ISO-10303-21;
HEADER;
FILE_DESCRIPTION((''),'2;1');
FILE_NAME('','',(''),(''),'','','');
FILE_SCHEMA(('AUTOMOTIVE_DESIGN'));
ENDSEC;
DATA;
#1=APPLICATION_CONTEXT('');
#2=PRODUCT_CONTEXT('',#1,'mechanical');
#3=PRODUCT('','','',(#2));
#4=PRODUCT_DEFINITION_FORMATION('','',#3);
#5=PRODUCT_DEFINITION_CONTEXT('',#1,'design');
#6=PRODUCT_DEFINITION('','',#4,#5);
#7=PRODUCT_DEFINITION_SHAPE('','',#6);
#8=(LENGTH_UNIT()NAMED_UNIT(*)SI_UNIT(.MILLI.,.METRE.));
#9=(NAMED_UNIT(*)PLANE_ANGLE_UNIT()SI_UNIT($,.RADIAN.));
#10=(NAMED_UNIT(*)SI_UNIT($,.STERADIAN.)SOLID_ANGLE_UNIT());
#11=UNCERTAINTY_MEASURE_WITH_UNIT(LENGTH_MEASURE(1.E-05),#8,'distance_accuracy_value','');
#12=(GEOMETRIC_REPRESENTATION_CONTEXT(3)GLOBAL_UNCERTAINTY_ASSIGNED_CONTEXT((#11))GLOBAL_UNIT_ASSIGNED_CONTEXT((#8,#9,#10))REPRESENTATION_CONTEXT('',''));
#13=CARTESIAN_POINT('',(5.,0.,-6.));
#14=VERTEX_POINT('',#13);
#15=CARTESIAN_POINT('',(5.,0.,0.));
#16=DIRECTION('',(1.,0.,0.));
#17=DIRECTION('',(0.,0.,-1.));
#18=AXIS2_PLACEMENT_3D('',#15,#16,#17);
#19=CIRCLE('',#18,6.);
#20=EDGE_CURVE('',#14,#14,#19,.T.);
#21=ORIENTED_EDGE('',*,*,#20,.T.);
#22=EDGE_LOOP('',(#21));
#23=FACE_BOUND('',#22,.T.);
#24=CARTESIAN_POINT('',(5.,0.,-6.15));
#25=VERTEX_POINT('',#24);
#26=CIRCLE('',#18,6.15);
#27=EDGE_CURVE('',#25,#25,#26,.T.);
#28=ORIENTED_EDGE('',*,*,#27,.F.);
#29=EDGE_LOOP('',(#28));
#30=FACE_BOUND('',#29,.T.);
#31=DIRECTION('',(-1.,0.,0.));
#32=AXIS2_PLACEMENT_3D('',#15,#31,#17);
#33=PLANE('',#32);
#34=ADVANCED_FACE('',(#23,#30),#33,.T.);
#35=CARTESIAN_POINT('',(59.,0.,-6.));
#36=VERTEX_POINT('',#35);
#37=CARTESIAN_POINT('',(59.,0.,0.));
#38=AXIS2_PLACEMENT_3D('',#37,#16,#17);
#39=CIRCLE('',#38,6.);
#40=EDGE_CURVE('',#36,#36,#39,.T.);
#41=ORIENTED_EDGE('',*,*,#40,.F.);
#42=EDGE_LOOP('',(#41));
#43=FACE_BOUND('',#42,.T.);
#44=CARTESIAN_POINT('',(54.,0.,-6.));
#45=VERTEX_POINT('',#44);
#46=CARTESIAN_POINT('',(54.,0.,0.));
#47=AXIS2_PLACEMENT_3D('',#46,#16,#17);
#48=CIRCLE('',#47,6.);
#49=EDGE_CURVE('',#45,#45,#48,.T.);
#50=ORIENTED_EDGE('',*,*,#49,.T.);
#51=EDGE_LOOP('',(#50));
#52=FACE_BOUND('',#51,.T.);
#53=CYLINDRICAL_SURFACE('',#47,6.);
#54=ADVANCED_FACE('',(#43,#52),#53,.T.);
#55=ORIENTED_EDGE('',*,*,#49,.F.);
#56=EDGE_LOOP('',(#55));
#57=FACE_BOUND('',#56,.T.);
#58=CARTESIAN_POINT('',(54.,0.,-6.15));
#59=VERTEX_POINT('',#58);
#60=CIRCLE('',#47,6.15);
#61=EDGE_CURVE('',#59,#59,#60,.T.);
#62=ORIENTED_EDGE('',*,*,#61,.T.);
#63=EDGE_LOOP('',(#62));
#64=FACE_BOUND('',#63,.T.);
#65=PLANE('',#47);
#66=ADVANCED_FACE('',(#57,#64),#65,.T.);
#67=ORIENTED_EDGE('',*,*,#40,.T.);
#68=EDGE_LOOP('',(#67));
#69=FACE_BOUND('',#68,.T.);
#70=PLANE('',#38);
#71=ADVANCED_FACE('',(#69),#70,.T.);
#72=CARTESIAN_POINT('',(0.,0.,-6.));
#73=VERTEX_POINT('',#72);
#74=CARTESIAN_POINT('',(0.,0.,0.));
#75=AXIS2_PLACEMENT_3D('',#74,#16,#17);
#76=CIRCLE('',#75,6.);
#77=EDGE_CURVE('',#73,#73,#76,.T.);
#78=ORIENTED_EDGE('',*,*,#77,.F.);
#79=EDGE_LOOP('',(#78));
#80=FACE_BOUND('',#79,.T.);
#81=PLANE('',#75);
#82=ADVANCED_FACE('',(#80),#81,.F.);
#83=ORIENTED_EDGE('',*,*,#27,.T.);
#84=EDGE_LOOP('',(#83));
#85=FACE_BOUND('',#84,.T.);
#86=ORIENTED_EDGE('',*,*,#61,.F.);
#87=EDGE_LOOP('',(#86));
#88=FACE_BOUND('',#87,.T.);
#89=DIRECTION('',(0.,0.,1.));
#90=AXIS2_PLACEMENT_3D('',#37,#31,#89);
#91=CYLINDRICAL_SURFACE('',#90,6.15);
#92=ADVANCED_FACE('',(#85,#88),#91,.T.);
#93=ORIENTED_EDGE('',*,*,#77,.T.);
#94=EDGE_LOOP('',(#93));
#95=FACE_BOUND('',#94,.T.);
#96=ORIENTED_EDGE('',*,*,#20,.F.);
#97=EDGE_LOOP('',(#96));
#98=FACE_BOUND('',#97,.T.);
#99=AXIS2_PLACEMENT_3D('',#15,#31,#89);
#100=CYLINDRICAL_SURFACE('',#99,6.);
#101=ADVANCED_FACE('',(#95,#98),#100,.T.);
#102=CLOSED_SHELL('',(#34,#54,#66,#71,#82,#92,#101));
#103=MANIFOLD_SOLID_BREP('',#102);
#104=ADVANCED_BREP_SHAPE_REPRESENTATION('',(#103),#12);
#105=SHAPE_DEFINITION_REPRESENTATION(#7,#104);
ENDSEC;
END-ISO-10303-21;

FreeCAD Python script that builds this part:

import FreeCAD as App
import Part
import Sketcher

V = App.Vector
Q = App.Units.Quantity

doc = App.newDocument("Part")
body = doc.addObject("PartDesign::Body", "Body")

sketch1 = body.newObject("Sketcher::SketchObject", "Sketch")
sketch1.AttachmentSupport = (doc.getObject("YZ_Plane"), [""])
sketch1.MapMode = "FlatFace"
sketch1.addGeometry(Part.Circle(V(0, 0, 0), V(0, 0, 1), 6.15), False)
sketch1.addConstraint([
    Sketcher.Constraint("Coincident", 0, 3, -1, 1),
    Sketcher.Constraint("Diameter", 0, Q("12.3 mm")),
])
pad1 = body.newObject("PartDesign::Pad", "Pad")
pad1.Profile = sketch1
pad1.Length = 59

sketch2 = body.newObject("Sketcher::SketchObject", "Sketch001")
sketch2.AttachmentSupport = (doc.getObject("YZ_Plane"), [""])
sketch2.MapMode = "FlatFace"
sketch2.AttachmentOffset = App.Placement(V(0, 0, 54), App.Rotation())
sketch2.addGeometry([
    Part.Circle(V(0, 0, 0), V(0, 0, 1), 6.15),
    Part.Circle(V(0, 0, 0), V(0, 0, 1), 6),
], False)
sketch2.addConstraint([
    Sketcher.Constraint("Coincident", 0, 3, -1, 1),
    Sketcher.Constraint("Coincident", 1, 3, -1, 1),
    Sketcher.Constraint("Diameter", 1, Q("12 mm")),
    Sketcher.Constraint("Diameter", 0, Q("12.3 mm")),
])
pocket1 = body.newObject("PartDesign::Pocket", "Pocket")
pocket1.Profile = sketch2
pocket1.Length = 5
pocket1.Reversed = True
doc.recompute()

datumplane = body.newObject("PartDesign::Plane", "DatumPlane")
datumplane.AttachmentSupport = (doc.getObject("YZ_Plane"), [""])
datumplane.MapMode = "FlatFace"
datumplane.AttachmentOffset = App.Placement(V(0, 0, 29.5), App.Rotation())
mirrored = body.newObject("PartDesign::Mirrored", "Mirrored")
mirrored.Originals = [pocket1]
mirrored.MirrorPlane = (datumplane, [""])
body.Tip = mirrored

doc.recompute()
